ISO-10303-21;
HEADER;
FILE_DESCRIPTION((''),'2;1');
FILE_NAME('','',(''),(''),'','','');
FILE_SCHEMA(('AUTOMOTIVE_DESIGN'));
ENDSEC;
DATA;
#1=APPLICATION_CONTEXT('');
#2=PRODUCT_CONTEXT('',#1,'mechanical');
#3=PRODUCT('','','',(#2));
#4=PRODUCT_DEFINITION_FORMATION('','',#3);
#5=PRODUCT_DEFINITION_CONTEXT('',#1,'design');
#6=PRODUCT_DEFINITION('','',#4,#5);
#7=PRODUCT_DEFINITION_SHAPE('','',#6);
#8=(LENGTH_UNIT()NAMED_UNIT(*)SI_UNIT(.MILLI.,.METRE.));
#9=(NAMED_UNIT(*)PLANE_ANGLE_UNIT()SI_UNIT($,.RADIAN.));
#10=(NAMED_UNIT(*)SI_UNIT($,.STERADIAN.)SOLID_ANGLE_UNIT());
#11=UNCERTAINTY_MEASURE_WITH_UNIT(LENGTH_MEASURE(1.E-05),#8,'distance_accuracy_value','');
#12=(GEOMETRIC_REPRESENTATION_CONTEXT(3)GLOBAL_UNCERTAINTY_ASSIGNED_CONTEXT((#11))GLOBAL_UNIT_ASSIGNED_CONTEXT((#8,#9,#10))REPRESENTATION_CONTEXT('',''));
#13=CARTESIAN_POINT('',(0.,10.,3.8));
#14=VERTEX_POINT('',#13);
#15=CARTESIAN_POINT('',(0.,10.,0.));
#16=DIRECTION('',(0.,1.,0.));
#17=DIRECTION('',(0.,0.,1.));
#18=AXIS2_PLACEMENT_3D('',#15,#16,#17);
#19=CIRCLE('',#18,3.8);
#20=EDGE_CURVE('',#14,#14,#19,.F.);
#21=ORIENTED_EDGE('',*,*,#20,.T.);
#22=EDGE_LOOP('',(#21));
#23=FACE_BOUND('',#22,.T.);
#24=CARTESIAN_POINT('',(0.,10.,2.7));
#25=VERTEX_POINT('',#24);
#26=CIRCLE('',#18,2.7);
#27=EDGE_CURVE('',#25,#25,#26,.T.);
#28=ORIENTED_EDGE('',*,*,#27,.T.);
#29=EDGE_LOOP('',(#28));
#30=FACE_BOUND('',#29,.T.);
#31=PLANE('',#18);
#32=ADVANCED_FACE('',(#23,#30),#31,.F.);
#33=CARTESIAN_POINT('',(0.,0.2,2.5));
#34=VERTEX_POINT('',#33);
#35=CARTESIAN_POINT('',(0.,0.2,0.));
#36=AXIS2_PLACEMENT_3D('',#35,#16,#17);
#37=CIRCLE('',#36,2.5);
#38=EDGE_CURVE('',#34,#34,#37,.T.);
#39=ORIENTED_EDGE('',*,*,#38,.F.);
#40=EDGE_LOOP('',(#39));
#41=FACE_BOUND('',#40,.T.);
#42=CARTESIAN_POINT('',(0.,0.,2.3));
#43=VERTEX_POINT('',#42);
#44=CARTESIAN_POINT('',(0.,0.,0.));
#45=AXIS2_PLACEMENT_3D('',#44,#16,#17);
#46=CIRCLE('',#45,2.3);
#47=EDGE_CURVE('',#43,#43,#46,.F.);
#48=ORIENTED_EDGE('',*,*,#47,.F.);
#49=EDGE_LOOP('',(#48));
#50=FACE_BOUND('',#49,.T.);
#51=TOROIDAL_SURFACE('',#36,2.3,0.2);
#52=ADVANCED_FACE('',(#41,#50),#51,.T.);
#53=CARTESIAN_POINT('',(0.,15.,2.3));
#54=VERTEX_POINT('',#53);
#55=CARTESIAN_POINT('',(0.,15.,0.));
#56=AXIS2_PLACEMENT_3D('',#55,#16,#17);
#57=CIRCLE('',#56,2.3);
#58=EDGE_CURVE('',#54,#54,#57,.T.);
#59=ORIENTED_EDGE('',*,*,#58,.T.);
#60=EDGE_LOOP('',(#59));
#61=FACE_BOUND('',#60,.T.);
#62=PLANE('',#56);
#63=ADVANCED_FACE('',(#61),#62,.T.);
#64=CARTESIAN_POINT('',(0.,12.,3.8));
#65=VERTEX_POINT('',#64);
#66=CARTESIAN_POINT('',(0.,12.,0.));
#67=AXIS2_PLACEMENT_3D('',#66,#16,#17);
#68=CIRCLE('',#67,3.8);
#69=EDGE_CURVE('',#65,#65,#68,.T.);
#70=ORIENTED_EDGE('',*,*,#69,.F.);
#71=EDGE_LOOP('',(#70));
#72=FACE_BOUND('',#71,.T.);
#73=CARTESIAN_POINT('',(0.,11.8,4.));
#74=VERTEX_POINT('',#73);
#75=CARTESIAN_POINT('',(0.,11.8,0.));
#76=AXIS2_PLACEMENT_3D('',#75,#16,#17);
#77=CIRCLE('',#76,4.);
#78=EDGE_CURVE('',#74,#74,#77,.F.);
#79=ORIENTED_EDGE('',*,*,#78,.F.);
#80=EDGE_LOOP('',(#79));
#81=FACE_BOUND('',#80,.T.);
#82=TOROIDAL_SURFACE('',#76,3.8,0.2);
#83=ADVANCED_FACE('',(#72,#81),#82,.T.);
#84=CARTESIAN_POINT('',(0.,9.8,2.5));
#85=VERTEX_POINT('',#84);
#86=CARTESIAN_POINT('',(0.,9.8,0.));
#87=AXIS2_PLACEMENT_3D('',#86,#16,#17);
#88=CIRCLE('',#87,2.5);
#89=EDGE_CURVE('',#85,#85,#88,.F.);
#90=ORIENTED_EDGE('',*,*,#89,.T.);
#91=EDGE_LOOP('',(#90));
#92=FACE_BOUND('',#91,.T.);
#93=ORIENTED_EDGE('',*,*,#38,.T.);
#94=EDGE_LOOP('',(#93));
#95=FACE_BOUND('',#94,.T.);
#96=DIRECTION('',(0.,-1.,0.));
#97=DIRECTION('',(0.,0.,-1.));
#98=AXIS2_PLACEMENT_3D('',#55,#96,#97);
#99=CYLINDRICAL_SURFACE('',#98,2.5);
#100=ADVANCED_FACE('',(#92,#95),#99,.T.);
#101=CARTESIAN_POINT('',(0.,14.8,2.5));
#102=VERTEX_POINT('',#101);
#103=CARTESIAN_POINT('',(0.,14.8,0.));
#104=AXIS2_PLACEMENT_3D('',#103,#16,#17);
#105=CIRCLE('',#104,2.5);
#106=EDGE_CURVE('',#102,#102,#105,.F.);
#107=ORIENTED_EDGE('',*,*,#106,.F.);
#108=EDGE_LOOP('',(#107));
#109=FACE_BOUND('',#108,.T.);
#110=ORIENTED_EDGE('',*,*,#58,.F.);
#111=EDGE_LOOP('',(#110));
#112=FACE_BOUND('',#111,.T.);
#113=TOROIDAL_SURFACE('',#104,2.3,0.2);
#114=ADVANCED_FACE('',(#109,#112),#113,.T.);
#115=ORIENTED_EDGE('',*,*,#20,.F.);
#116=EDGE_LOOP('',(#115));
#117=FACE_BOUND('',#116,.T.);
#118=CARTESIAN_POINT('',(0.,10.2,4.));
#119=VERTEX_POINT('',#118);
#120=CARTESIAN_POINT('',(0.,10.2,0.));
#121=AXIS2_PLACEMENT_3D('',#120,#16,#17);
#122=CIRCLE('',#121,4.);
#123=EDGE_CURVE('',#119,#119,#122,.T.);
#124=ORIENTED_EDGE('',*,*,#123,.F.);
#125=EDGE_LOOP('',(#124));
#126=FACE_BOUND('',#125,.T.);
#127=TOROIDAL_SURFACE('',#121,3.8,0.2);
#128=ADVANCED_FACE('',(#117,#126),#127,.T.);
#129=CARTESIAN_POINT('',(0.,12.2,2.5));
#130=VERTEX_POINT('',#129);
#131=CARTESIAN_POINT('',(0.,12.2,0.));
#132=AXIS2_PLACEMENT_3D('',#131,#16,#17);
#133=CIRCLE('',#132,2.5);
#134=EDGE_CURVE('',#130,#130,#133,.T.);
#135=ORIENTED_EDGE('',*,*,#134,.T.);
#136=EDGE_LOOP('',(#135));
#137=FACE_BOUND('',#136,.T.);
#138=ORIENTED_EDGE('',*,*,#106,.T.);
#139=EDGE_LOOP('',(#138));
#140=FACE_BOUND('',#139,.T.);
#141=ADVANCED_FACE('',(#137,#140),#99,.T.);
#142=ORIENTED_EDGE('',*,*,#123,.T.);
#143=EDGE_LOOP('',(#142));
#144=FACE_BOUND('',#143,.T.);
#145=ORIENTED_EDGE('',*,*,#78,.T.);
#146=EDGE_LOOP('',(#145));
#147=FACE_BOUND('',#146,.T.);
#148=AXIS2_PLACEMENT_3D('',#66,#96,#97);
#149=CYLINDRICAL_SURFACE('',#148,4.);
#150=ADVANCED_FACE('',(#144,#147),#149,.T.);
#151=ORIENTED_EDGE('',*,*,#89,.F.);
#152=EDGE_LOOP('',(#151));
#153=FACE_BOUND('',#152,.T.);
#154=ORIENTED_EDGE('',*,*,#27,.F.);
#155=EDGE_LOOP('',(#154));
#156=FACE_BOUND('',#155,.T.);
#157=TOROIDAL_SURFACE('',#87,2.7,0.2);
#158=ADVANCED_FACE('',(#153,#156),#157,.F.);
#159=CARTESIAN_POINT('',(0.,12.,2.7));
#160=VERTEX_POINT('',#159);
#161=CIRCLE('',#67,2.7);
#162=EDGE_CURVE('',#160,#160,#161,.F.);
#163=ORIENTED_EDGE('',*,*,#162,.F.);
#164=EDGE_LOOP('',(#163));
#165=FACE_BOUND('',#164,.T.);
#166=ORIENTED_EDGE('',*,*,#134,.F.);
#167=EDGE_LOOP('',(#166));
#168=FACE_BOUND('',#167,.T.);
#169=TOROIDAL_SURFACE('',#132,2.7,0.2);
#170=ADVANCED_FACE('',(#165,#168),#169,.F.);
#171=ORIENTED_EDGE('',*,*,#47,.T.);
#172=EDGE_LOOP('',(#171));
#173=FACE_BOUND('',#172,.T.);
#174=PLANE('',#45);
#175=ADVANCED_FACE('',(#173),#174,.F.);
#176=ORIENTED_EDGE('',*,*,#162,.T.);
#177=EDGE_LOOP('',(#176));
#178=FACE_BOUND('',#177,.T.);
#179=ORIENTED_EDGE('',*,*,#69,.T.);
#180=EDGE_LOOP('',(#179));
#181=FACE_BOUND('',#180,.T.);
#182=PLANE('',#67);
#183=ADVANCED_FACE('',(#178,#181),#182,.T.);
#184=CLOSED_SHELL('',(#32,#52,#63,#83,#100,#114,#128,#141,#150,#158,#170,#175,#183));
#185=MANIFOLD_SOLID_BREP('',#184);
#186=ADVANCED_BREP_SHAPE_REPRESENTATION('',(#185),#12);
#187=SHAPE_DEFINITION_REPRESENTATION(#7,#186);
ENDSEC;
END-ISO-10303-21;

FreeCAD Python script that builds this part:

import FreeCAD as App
import Part
import Sketcher

V = App.Vector
Q = App.Units.Quantity


def edges_at(feature, points):
    """Names of the edges that pass closest to the given points."""
    edges = feature.Shape.Edges
    near = lambda p: min(range(len(edges)), key=lambda i: edges[i].distToShape(Part.Vertex(*p))[0])
    return sorted({f"Edge{near(p) + 1}" for p in points})

doc = App.newDocument("Part")
body = doc.addObject("PartDesign::Body", "Body")

sketch1 = body.newObject("Sketcher::SketchObject", "Sketch")
sketch1.AttachmentSupport = (doc.getObject("XZ_Plane"), [""])
sketch1.MapMode = "FlatFace"
sketch1.addGeometry(Part.Circle(V(0, 0, 0), V(0, 0, 1), 2.5), False)
sketch1.addConstraint([
    Sketcher.Constraint("Coincident", 0, 3, -1, 1),
    Sketcher.Constraint("Diameter", 0, Q("5 mm")),
])
pad1 = body.newObject("PartDesign::Pad", "Pad")
pad1.Profile = sketch1
pad1.Length = 15
pad1.Reversed = True

sketch2 = body.newObject("Sketcher::SketchObject", "Sketch001")
sketch2.AttachmentSupport = (doc.getObject("XZ_Plane"), [""])
sketch2.MapMode = "FlatFace"
sketch2.AttachmentOffset = App.Placement(V(0, 0, -10), App.Rotation())
sketch2.addGeometry(Part.Circle(V(0, 0, 0), V(0, 0, 1), 4), False)
sketch2.addConstraint([
    Sketcher.Constraint("Coincident", 0, 3, -1, 1),
    Sketcher.Constraint("Diameter", 0, Q("8 mm")),
])
pad2 = body.newObject("PartDesign::Pad", "Pad001")
pad2.Profile = sketch2
pad2.Length = 2
pad2.Reversed = True
doc.recompute()

fillet = body.newObject("PartDesign::Fillet", "Fillet")
fillet.Base = (pad2, edges_at(pad2, [
    (0, 0, -2.5),
    (0, 15, -2.5),
    (0, 10, -2.5),
    (0, 12, -2.5),
    (0, 10, -4),
    (0, 12, -4),
]))
fillet.Radius = 0.2

doc.recompute()
